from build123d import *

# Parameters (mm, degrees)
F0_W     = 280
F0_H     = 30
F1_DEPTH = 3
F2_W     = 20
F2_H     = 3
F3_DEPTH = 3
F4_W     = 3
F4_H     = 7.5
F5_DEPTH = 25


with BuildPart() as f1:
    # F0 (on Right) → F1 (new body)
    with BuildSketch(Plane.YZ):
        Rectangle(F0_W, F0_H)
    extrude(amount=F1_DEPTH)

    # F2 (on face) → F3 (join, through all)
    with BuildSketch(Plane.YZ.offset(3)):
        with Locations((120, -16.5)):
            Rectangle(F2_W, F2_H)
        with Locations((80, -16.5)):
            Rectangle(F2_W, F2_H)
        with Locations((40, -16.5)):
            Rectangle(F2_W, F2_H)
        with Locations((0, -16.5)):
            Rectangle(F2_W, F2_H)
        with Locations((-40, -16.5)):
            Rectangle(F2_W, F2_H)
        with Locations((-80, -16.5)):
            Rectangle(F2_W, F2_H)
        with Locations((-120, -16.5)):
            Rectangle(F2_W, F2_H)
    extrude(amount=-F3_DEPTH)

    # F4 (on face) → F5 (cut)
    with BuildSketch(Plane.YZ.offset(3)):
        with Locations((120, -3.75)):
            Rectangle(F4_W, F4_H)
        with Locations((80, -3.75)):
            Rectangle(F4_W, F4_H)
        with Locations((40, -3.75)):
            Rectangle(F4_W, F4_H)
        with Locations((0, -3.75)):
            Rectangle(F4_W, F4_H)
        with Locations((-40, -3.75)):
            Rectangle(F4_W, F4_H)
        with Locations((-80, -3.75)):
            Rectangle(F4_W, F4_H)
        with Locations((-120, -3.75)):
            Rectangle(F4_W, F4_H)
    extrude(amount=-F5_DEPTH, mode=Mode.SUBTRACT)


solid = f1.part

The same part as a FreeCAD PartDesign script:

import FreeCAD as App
import Part
import Sketcher

V = App.Vector

doc = App.newDocument("Part")
body = doc.addObject("PartDesign::Body", "Body")

sketch1 = body.newObject("Sketcher::SketchObject", "Sketch")
sketch1.AttachmentSupport = (doc.getObject("YZ_Plane"), [""])
sketch1.MapMode = "FlatFace"
sketch1.addGeometry([
    Part.LineSegment(V(-140, 15, 0), V(-140, -15, 0)),
    Part.LineSegment(V(-140, -15, 0), V(140, -15, 0)),
    Part.LineSegment(V(140, -15, 0), V(140, 15, 0)),
    Part.LineSegment(V(140, 15, 0), V(-140, 15, 0)),
], False)
sketch1.addConstraint([
    Sketcher.Constraint("Coincident", 0, 2, 1, 1),
    Sketcher.Constraint("Coincident", 1, 2, 2, 1),
    Sketcher.Constraint("Coincident", 2, 2, 3, 1),
    Sketcher.Constraint("Coincident", 3, 2, 0, 1),
    Sketcher.Constraint("Vertical", 0),
    Sketcher.Constraint("Horizontal", 1),
    Sketcher.Constraint("Vertical", 2),
    Sketcher.Constraint("Horizontal", 3),
    Sketcher.Constraint("Symmetric", 0, 2, 2, 2, -1, 1),
    Sketcher.Constraint("DistanceX", 1, 1, 1, 2, 280.0),
    Sketcher.Constraint("DistanceY", 0, 2, 0, 1, 30.0),
])
pad1 = body.newObject("PartDesign::Pad", "Pad")
pad1.Profile = sketch1
pad1.Length = 3

sketch2 = body.newObject("Sketcher::SketchObject", "Sketch001")
sketch2.AttachmentSupport = (doc.getObject("YZ_Plane"), [""])
sketch2.MapMode = "FlatFace"
sketch2.AttachmentOffset = App.Placement(V(0, 0, 3), App.Rotation())
sketch2.addGeometry([
    Part.LineSegment(V(110, -15, 0), V(110, -18, 0)),
    Part.LineSegment(V(110, -18, 0), V(130, -18, 0)),
    Part.LineSegment(V(130, -18, 0), V(130, -15, 0)),
    Part.LineSegment(V(130, -15, 0), V(110, -15, 0)),
    Part.LineSegment(V(70, -15, 0), V(70, -18, 0)),
    Part.LineSegment(V(70, -18, 0), V(90, -18, 0)),
    Part.LineSegment(V(90, -18, 0), V(90, -15, 0)),
    Part.LineSegment(V(90, -15, 0), V(70, -15, 0)),
    Part.LineSegment(V(30, -15, 0), V(30, -18, 0)),
    Part.LineSegment(V(30, -18, 0), V(50, -18, 0)),
    Part.LineSegment(V(50, -18, 0), V(50, -15, 0)),
    Part.LineSegment(V(50, -15, 0), V(30, -15, 0)),
    Part.LineSegment(V(-10, -15, 0), V(-10, -18, 0)),
    Part.LineSegment(V(-10, -18, 0), V(10, -18, 0)),
    Part.LineSegment(V(10, -18, 0), V(10, -15, 0)),
    Part.LineSegment(V(10, -15, 0), V(-10, -15, 0)),
    Part.LineSegment(V(-50, -15, 0), V(-50, -18, 0)),
    Part.LineSegment(V(-50, -18, 0), V(-30, -18, 0)),
    Part.LineSegment(V(-30, -18, 0), V(-30, -15, 0)),
    Part.LineSegment(V(-30, -15, 0), V(-50, -15, 0)),
    Part.LineSegment(V(-90, -15, 0), V(-90, -18, 0)),
    Part.LineSegment(V(-90, -18, 0), V(-70, -18, 0)),
    Part.LineSegment(V(-70, -18, 0), V(-70, -15, 0)),
    Part.LineSegment(V(-70, -15, 0), V(-90, -15, 0)),
    Part.LineSegment(V(-130, -15, 0), V(-130, -18, 0)),
    Part.LineSegment(V(-130, -18, 0), V(-110, -18, 0)),
    Part.LineSegment(V(-110, -18, 0), V(-110, -15, 0)),
    Part.LineSegment(V(-110, -15, 0), V(-130, -15, 0)),
], False)
sketch2.addConstraint([
    Sketcher.Constraint("Coincident", 0, 2, 1, 1),
    Sketcher.Constraint("Coincident", 1, 2, 2, 1),
    Sketcher.Constraint("Coincident", 2, 2, 3, 1),
    Sketcher.Constraint("Coincident", 3, 2, 0, 1),
    Sketcher.Constraint("Coincident", 4, 2, 5, 1),
    Sketcher.Constraint("Coincident", 5, 2, 6, 1),
    Sketcher.Constraint("Coincident", 6, 2, 7, 1),
    Sketcher.Constraint("Coincident", 7, 2, 4, 1),
    Sketcher.Constraint("Coincident", 8, 2, 9, 1),
    Sketcher.Constraint("Coincident", 9, 2, 10, 1),
    Sketcher.Constraint("Coincident", 10, 2, 11, 1),
    Sketcher.Constraint("Coincident", 11, 2, 8, 1),
    Sketcher.Constraint("Coincident", 12, 2, 13, 1),
    Sketcher.Constraint("Coincident", 13, 2, 14, 1),
    Sketcher.Constraint("Coincident", 14, 2, 15, 1),
    Sketcher.Constraint("Coincident", 15, 2, 12, 1),
    Sketcher.Constraint("Coincident", 16, 2, 17, 1),
    Sketcher.Constraint("Coincident", 17, 2, 18, 1),
    Sketcher.Constraint("Coincident", 18, 2, 19, 1),
    Sketcher.Constraint("Coincident", 19, 2, 16, 1),
    Sketcher.Constraint("Coincident", 20, 2, 21, 1),
    Sketcher.Constraint("Coincident", 21, 2, 22, 1),
    Sketcher.Constraint("Coincident", 22, 2, 23, 1),
    Sketcher.Constraint("Coincident", 23, 2, 20, 1),
    Sketcher.Constraint("Coincident", 24, 2, 25, 1),
    Sketcher.Constraint("Coincident", 25, 2, 26, 1),
    Sketcher.Constraint("Coincident", 26, 2, 27, 1),
    Sketcher.Constraint("Coincident", 27, 2, 24, 1),
    Sketcher.Constraint("Vertical", 0),
    Sketcher.Constraint("Horizontal", 1),
    Sketcher.Constraint("Vertical", 2),
    Sketcher.Constraint("Horizontal", 3),
    Sketcher.Constraint("Vertical", 4),
    Sketcher.Constraint("Horizontal", 5),
    Sketcher.Constraint("Vertical", 6),
    Sketcher.Constraint("Horizontal", 7),
    Sketcher.Constraint("Vertical", 8),
    Sketcher.Constraint("Horizontal", 9),
    Sketcher.Constraint("Vertical", 10),
    Sketcher.Constraint("Horizontal", 11),
    Sketcher.Constraint("Vertical", 12),
    Sketcher.Constraint("Horizontal", 13),
    Sketcher.Constraint("Vertical", 14),
    Sketcher.Constraint("Horizontal", 15),
    Sketcher.Constraint("Vertical", 16),
    Sketcher.Constraint("Horizontal", 17),
    Sketcher.Constraint("Vertical", 18),
    Sketcher.Constraint("Horizontal", 19),
    Sketcher.Constraint("Vertical", 20),
    Sketcher.Constraint("Horizontal", 21),
    Sketcher.Constraint("Vertical", 22),
    Sketcher.Constraint("Horizontal", 23),
    Sketcher.Constraint("Vertical", 24),
    Sketcher.Constraint("Horizontal", 25),
    Sketcher.Constraint("Vertical", 26),
    Sketcher.Constraint("Horizontal", 27),
    Sketcher.Constraint("Symmetric", 9, 2, 16, 2, -2),
    Sketcher.Constraint("Symmetric", 11, 2, 18, 2, -2),
    Sketcher.Constraint("Symmetric", 5, 2, 20, 2, -2),
    Sketcher.Constraint("Symmetric", 7, 2, 22, 2, -2),
    Sketcher.Constraint("Symmetric", 1, 2, 24, 2, -2),
    Sketcher.Constraint("Symmetric", 3, 2, 26, 2, -2),
    Sketcher.Constraint("Horizontal", 1, 2, 4, 2),
    Sketcher.Constraint("Horizontal", 3, 2, 6, 2),
    Sketcher.Constraint("Horizontal", 5, 2, 8, 2),
    Sketcher.Constraint("Horizontal", 7, 2, 10, 2),
    Sketcher.Constraint("Horizontal", 9, 2, 12, 2),
    Sketcher.Constraint("Horizontal", 11, 2, 14, 2),
    Sketcher.Constraint("Equal", 3, 5),
    Sketcher.Constraint("Equal", 7, 9),
    Sketcher.Constraint("Equal", 11, 13),
    Sketcher.Constraint("DistanceX", 1, 1, 1, 2, 20.0),
    Sketcher.Constraint("DistanceY", 0, 2, 0, 1, 3.0),
    Sketcher.Constraint("DistanceX", -1, 1, 0, 2, 110.0),
    Sketcher.Constraint("DistanceY", 0, 2, -1, 1, 18.0),
    Sketcher.Constraint("DistanceX", -1, 1, 4, 2, 70.0),
    Sketcher.Constraint("DistanceX", -1, 1, 8, 2, 30.0),
    Sketcher.Constraint("DistanceX", 12, 2, -1, 1, 10.0),
])
pad2 = body.newObject("PartDesign::Pad", "Pad001")
pad2.Profile = sketch2
pad2.Length = 3
pad2.Reversed = True

sketch3 = body.newObject("Sketcher::SketchObject", "Sketch002")
sketch3.AttachmentSupport = (doc.getObject("YZ_Plane"), [""])
sketch3.MapMode = "FlatFace"
sketch3.AttachmentOffset = App.Placement(V(0, 0, 3), App.Rotation())
sketch3.addGeometry([
    Part.LineSegment(V(118.5, 0, 0), V(118.5, -7.5, 0)),
    Part.LineSegment(V(118.5, -7.5, 0), V(121.5, -7.5, 0)),
    Part.LineSegment(V(121.5, -7.5, 0), V(121.5, 0, 0)),
    Part.LineSegment(V(121.5, 0, 0), V(118.5, 0, 0)),
    Part.LineSegment(V(78.5, 0, 0), V(78.5, -7.5, 0)),
    Part.LineSegment(V(78.5, -7.5, 0), V(81.5, -7.5, 0)),
    Part.LineSegment(V(81.5, -7.5, 0), V(81.5, 0, 0)),
    Part.LineSegment(V(81.5, 0, 0), V(78.5, 0, 0)),
    Part.LineSegment(V(38.5, 0, 0), V(38.5, -7.5, 0)),
    Part.LineSegment(V(38.5, -7.5, 0), V(41.5, -7.5, 0)),
    Part.LineSegment(V(41.5, -7.5, 0), V(41.5, 0, 0)),
    Part.LineSegment(V(41.5, 0, 0), V(38.5, 0, 0)),
    Part.LineSegment(V(-1.5, 0, 0), V(-1.5, -7.5, 0)),
    Part.LineSegment(V(-1.5, -7.5, 0), V(1.5, -7.5, 0)),
    Part.LineSegment(V(1.5, -7.5, 0), V(1.5, 0, 0)),
    Part.LineSegment(V(1.5, 0, 0), V(-1.5, 0, 0)),
    Part.LineSegment(V(-41.5, 0, 0), V(-41.5, -7.5, 0)),
    Part.LineSegment(V(-41.5, -7.5, 0), V(-38.5, -7.5, 0)),
    Part.LineSegment(V(-38.5, -7.5, 0), V(-38.5, 0, 0)),
    Part.LineSegment(V(-38.5, 0, 0), V(-41.5, 0, 0)),
    Part.LineSegment(V(-81.5, 0, 0), V(-81.5, -7.5, 0)),
    Part.LineSegment(V(-81.5, -7.5, 0), V(-78.5, -7.5, 0)),
    Part.LineSegment(V(-78.5, -7.5, 0), V(-78.5, 0, 0)),
    Part.LineSegment(V(-78.5, 0, 0), V(-81.5, 0, 0)),
    Part.LineSegment(V(-121.5, 0, 0), V(-121.5, -7.5, 0)),
    Part.LineSegment(V(-121.5, -7.5, 0), V(-118.5, -7.5, 0)),
    Part.LineSegment(V(-118.5, -7.5, 0), V(-118.5, 0, 0)),
    Part.LineSegment(V(-118.5, 0, 0), V(-121.5, 0, 0)),
], False)
sketch3.addConstraint([
    Sketcher.Constraint("Coincident", 0, 2, 1, 1),
    Sketcher.Constraint("Coincident", 1, 2, 2, 1),
    Sketcher.Constraint("Coincident", 2, 2, 3, 1),
    Sketcher.Constraint("Coincident", 3, 2, 0, 1),
    Sketcher.Constraint("Coincident", 4, 2, 5, 1),
    Sketcher.Constraint("Coincident", 5, 2, 6, 1),
    Sketcher.Constraint("Coincident", 6, 2, 7, 1),
    Sketcher.Constraint("Coincident", 7, 2, 4, 1),
    Sketcher.Constraint("Coincident", 8, 2, 9, 1),
    Sketcher.Constraint("Coincident", 9, 2, 10, 1),
    Sketcher.Constraint("Coincident", 10, 2, 11, 1),
    Sketcher.Constraint("Coincident", 11, 2, 8, 1),
    Sketcher.Constraint("Coincident", 12, 2, 13, 1),
    Sketcher.Constraint("Coincident", 13, 2, 14, 1),
    Sketcher.Constraint("Coincident", 14, 2, 15, 1),
    Sketcher.Constraint("Coincident", 15, 2, 12, 1),
    Sketcher.Constraint("Coincident", 16, 2, 17, 1),
    Sketcher.Constraint("Coincident", 17, 2, 18, 1),
    Sketcher.Constraint("Coincident", 18, 2, 19, 1),
    Sketcher.Constraint("Coincident", 19, 2, 16, 1),
    Sketcher.Constraint("Coincident", 20, 2, 21, 1),
    Sketcher.Constraint("Coincident", 21, 2, 22, 1),
    Sketcher.Constraint("Coincident", 22, 2, 23, 1),
    Sketcher.Constraint("Coincident", 23, 2, 20, 1),
    Sketcher.Constraint("Coincident", 24, 2, 25, 1),
    Sketcher.Constraint("Coincident", 25, 2, 26, 1),
    Sketcher.Constraint("Coincident", 26, 2, 27, 1),
    Sketcher.Constraint("Coincident", 27, 2, 24, 1),
    Sketcher.Constraint("Vertical", 0),
    Sketcher.Constraint("Horizontal", 1),
    Sketcher.Constraint("Vertical", 2),
    Sketcher.Constraint("Horizontal", 3),
    Sketcher.Constraint("Vertical", 4),
    Sketcher.Constraint("Horizontal", 5),
    Sketcher.Constraint("Vertical", 6),
    Sketcher.Constraint("Horizontal", 7),
    Sketcher.Constraint("Vertical", 8),
    Sketcher.Constraint("Horizontal", 9),
    Sketcher.Constraint("Vertical", 10),
    Sketcher.Constraint("Horizontal", 11),
    Sketcher.Constraint("Vertical", 12),
    Sketcher.Constraint("Horizontal", 13),
    Sketcher.Constraint("Vertical", 14),
    Sketcher.Constraint("Horizontal", 15),
    Sketcher.Constraint("Vertical", 16),
    Sketcher.Constraint("Horizontal", 17),
    Sketcher.Constraint("Vertical", 18),
    Sketcher.Constraint("Horizontal", 19),
    Sketcher.Constraint("Vertical", 20),
    Sketcher.Constraint("Horizontal", 21),
    Sketcher.Constraint("Vertical", 22),
    Sketcher.Constraint("Horizontal", 23),
    Sketcher.Constraint("Vertical", 24),
    Sketcher.Constraint("Horizontal", 25),
    Sketcher.Constraint("Vertical", 26),
    Sketcher.Constraint("Horizontal", 27),
    Sketcher.Constraint("Symmetric", 14, 2, 15, 2, -1, 1),
    Sketcher.Constraint("Symmetric", 11, 2, 18, 2, -1, 1),
    Sketcher.Constraint("Symmetric", 7, 2, 22, 2, -1, 1),
    Sketcher.Constraint("Symmetric", 3, 2, 26, 2, -1, 1),
    Sketcher.Constraint("Symmetric", 9, 2, 16, 2, -2),
    Sketcher.Constraint("Symmetric", 5, 2, 20, 2, -2),
    Sketcher.Constraint("Symmetric", 1, 2, 24, 2, -2),
    Sketcher.Constraint("PointOnObject", 2, 2, -1),
    Sketcher.Constraint("PointOnObject", 6, 2, -1),
    Sketcher.Constraint("PointOnObject", 10, 2, -1),
    Sketcher.Constraint("Horizontal", 1, 2, 4, 2),
    Sketcher.Constraint("Horizontal", 5, 2, 8, 2),
    Sketcher.Constraint("Horizontal", 9, 2, 12, 2),
    Sketcher.Constraint("Equal", 3, 5),
    Sketcher.Constraint("Equal", 7, 9),
    Sketcher.Constraint("Equal", 11, 13),
    Sketcher.Constraint("DistanceX", 1, 1, 1, 2, 3.0),
    Sketcher.Constraint("DistanceY", 0, 2, 0, 1, 7.5),
    Sketcher.Constraint("DistanceX", 4, 2, 0, 2, 40.0),
    Sketcher.Constraint("DistanceX", 8, 2, 4, 2, 40.0),
    Sketcher.Constraint("DistanceX", 12, 2, 8, 2, 40.0),
])
pocket1 = body.newObject("PartDesign::Pocket", "Pocket")
pocket1.Profile = sketch3
pocket1.Length = 25

doc.recompute()
